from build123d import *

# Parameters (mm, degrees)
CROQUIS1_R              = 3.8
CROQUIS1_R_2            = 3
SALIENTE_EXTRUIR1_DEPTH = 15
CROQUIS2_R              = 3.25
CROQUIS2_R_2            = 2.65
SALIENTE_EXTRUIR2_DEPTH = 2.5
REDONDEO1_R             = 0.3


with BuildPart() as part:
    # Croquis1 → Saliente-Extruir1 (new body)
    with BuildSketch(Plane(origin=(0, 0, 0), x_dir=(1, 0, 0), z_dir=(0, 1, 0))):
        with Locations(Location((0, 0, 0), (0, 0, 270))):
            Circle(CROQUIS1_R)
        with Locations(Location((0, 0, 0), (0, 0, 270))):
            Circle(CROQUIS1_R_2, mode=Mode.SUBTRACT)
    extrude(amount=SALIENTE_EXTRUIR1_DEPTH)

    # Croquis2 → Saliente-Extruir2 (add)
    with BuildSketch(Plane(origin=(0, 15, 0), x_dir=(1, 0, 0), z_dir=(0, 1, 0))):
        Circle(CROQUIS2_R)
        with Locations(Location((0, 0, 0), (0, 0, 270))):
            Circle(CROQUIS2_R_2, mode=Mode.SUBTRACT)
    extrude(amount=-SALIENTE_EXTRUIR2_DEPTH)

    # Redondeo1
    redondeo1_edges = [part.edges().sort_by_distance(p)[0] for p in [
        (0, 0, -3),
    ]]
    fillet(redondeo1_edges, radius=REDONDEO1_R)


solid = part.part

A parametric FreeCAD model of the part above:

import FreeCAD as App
import Part
import Sketcher

V = App.Vector
Q = App.Units.Quantity


def edges_at(feature, points):
    """Names of the edges that pass closest to the given points."""
    edges = feature.Shape.Edges
    near = lambda p: min(range(len(edges)), key=lambda i: edges[i].distToShape(Part.Vertex(*p))[0])
    return sorted({f"Edge{near(p) + 1}" for p in points})

doc = App.newDocument("Part")
body = doc.addObject("PartDesign::Body", "Body")

# Sketch on XZ plane
sketch1 = body.newObject("Sketcher::SketchObject", "Sketch")
sketch1.AttachmentSupport = (doc.getObject("XZ_Plane"), [""])
sketch1.MapMode = "FlatFace"
sketch1.addGeometry([
    Part.Circle(V(0, 0, 0), V(0, 0, 1), 3.8),
    Part.Circle(V(0, 0, 0), V(0, 0, 1), 3),
], False)
sketch1.addConstraint([
    Sketcher.Constraint("Coincident", 0, 3, -1, 1),
    Sketcher.Constraint("Coincident", 1, 3, -1, 1),
    Sketcher.Constraint("Diameter", 1, Q("6 mm")),
    Sketcher.Constraint("Diameter", 0, Q("7.6 mm")),
])
pad1 = body.newObject("PartDesign::Pad", "Pad")
pad1.Profile = sketch1
pad1.Length = 15
pad1.Reversed = True

# Sketch on XZ plane
sketch2 = body.newObject("Sketcher::SketchObject", "Sketch001")
sketch2.AttachmentSupport = (doc.getObject("XZ_Plane"), [""])
sketch2.MapMode = "FlatFace"
sketch2.AttachmentOffset = App.Placement(V(0, 0, -15), App.Rotation())
sketch2.addGeometry([
    Part.Circle(V(0, 0, 0), V(0, 0, 1), 3.2),
    Part.Circle(V(0, 0, 0), V(0, 0, 1), 2.6),
], False)
sketch2.addConstraint([
    Sketcher.Constraint("Coincident", 0, 3, -1, 1),
    Sketcher.Constraint("Coincident", 1, 3, -1, 1),
    Sketcher.Constraint("Diameter", 0, Q("6.5 mm")),
    Sketcher.Constraint("Diameter", 1, Q("5.3 mm")),
])
pad2 = body.newObject("PartDesign::Pad", "Pad001")
pad2.Profile = sketch2
pad2.Length = 2.5
doc.recompute()

fillet = body.newObject("PartDesign::Fillet", "Fillet")
fillet.Base = (pad2, edges_at(pad2, [(0, 0, -3)]))
fillet.Radius = 0.3

doc.recompute()
